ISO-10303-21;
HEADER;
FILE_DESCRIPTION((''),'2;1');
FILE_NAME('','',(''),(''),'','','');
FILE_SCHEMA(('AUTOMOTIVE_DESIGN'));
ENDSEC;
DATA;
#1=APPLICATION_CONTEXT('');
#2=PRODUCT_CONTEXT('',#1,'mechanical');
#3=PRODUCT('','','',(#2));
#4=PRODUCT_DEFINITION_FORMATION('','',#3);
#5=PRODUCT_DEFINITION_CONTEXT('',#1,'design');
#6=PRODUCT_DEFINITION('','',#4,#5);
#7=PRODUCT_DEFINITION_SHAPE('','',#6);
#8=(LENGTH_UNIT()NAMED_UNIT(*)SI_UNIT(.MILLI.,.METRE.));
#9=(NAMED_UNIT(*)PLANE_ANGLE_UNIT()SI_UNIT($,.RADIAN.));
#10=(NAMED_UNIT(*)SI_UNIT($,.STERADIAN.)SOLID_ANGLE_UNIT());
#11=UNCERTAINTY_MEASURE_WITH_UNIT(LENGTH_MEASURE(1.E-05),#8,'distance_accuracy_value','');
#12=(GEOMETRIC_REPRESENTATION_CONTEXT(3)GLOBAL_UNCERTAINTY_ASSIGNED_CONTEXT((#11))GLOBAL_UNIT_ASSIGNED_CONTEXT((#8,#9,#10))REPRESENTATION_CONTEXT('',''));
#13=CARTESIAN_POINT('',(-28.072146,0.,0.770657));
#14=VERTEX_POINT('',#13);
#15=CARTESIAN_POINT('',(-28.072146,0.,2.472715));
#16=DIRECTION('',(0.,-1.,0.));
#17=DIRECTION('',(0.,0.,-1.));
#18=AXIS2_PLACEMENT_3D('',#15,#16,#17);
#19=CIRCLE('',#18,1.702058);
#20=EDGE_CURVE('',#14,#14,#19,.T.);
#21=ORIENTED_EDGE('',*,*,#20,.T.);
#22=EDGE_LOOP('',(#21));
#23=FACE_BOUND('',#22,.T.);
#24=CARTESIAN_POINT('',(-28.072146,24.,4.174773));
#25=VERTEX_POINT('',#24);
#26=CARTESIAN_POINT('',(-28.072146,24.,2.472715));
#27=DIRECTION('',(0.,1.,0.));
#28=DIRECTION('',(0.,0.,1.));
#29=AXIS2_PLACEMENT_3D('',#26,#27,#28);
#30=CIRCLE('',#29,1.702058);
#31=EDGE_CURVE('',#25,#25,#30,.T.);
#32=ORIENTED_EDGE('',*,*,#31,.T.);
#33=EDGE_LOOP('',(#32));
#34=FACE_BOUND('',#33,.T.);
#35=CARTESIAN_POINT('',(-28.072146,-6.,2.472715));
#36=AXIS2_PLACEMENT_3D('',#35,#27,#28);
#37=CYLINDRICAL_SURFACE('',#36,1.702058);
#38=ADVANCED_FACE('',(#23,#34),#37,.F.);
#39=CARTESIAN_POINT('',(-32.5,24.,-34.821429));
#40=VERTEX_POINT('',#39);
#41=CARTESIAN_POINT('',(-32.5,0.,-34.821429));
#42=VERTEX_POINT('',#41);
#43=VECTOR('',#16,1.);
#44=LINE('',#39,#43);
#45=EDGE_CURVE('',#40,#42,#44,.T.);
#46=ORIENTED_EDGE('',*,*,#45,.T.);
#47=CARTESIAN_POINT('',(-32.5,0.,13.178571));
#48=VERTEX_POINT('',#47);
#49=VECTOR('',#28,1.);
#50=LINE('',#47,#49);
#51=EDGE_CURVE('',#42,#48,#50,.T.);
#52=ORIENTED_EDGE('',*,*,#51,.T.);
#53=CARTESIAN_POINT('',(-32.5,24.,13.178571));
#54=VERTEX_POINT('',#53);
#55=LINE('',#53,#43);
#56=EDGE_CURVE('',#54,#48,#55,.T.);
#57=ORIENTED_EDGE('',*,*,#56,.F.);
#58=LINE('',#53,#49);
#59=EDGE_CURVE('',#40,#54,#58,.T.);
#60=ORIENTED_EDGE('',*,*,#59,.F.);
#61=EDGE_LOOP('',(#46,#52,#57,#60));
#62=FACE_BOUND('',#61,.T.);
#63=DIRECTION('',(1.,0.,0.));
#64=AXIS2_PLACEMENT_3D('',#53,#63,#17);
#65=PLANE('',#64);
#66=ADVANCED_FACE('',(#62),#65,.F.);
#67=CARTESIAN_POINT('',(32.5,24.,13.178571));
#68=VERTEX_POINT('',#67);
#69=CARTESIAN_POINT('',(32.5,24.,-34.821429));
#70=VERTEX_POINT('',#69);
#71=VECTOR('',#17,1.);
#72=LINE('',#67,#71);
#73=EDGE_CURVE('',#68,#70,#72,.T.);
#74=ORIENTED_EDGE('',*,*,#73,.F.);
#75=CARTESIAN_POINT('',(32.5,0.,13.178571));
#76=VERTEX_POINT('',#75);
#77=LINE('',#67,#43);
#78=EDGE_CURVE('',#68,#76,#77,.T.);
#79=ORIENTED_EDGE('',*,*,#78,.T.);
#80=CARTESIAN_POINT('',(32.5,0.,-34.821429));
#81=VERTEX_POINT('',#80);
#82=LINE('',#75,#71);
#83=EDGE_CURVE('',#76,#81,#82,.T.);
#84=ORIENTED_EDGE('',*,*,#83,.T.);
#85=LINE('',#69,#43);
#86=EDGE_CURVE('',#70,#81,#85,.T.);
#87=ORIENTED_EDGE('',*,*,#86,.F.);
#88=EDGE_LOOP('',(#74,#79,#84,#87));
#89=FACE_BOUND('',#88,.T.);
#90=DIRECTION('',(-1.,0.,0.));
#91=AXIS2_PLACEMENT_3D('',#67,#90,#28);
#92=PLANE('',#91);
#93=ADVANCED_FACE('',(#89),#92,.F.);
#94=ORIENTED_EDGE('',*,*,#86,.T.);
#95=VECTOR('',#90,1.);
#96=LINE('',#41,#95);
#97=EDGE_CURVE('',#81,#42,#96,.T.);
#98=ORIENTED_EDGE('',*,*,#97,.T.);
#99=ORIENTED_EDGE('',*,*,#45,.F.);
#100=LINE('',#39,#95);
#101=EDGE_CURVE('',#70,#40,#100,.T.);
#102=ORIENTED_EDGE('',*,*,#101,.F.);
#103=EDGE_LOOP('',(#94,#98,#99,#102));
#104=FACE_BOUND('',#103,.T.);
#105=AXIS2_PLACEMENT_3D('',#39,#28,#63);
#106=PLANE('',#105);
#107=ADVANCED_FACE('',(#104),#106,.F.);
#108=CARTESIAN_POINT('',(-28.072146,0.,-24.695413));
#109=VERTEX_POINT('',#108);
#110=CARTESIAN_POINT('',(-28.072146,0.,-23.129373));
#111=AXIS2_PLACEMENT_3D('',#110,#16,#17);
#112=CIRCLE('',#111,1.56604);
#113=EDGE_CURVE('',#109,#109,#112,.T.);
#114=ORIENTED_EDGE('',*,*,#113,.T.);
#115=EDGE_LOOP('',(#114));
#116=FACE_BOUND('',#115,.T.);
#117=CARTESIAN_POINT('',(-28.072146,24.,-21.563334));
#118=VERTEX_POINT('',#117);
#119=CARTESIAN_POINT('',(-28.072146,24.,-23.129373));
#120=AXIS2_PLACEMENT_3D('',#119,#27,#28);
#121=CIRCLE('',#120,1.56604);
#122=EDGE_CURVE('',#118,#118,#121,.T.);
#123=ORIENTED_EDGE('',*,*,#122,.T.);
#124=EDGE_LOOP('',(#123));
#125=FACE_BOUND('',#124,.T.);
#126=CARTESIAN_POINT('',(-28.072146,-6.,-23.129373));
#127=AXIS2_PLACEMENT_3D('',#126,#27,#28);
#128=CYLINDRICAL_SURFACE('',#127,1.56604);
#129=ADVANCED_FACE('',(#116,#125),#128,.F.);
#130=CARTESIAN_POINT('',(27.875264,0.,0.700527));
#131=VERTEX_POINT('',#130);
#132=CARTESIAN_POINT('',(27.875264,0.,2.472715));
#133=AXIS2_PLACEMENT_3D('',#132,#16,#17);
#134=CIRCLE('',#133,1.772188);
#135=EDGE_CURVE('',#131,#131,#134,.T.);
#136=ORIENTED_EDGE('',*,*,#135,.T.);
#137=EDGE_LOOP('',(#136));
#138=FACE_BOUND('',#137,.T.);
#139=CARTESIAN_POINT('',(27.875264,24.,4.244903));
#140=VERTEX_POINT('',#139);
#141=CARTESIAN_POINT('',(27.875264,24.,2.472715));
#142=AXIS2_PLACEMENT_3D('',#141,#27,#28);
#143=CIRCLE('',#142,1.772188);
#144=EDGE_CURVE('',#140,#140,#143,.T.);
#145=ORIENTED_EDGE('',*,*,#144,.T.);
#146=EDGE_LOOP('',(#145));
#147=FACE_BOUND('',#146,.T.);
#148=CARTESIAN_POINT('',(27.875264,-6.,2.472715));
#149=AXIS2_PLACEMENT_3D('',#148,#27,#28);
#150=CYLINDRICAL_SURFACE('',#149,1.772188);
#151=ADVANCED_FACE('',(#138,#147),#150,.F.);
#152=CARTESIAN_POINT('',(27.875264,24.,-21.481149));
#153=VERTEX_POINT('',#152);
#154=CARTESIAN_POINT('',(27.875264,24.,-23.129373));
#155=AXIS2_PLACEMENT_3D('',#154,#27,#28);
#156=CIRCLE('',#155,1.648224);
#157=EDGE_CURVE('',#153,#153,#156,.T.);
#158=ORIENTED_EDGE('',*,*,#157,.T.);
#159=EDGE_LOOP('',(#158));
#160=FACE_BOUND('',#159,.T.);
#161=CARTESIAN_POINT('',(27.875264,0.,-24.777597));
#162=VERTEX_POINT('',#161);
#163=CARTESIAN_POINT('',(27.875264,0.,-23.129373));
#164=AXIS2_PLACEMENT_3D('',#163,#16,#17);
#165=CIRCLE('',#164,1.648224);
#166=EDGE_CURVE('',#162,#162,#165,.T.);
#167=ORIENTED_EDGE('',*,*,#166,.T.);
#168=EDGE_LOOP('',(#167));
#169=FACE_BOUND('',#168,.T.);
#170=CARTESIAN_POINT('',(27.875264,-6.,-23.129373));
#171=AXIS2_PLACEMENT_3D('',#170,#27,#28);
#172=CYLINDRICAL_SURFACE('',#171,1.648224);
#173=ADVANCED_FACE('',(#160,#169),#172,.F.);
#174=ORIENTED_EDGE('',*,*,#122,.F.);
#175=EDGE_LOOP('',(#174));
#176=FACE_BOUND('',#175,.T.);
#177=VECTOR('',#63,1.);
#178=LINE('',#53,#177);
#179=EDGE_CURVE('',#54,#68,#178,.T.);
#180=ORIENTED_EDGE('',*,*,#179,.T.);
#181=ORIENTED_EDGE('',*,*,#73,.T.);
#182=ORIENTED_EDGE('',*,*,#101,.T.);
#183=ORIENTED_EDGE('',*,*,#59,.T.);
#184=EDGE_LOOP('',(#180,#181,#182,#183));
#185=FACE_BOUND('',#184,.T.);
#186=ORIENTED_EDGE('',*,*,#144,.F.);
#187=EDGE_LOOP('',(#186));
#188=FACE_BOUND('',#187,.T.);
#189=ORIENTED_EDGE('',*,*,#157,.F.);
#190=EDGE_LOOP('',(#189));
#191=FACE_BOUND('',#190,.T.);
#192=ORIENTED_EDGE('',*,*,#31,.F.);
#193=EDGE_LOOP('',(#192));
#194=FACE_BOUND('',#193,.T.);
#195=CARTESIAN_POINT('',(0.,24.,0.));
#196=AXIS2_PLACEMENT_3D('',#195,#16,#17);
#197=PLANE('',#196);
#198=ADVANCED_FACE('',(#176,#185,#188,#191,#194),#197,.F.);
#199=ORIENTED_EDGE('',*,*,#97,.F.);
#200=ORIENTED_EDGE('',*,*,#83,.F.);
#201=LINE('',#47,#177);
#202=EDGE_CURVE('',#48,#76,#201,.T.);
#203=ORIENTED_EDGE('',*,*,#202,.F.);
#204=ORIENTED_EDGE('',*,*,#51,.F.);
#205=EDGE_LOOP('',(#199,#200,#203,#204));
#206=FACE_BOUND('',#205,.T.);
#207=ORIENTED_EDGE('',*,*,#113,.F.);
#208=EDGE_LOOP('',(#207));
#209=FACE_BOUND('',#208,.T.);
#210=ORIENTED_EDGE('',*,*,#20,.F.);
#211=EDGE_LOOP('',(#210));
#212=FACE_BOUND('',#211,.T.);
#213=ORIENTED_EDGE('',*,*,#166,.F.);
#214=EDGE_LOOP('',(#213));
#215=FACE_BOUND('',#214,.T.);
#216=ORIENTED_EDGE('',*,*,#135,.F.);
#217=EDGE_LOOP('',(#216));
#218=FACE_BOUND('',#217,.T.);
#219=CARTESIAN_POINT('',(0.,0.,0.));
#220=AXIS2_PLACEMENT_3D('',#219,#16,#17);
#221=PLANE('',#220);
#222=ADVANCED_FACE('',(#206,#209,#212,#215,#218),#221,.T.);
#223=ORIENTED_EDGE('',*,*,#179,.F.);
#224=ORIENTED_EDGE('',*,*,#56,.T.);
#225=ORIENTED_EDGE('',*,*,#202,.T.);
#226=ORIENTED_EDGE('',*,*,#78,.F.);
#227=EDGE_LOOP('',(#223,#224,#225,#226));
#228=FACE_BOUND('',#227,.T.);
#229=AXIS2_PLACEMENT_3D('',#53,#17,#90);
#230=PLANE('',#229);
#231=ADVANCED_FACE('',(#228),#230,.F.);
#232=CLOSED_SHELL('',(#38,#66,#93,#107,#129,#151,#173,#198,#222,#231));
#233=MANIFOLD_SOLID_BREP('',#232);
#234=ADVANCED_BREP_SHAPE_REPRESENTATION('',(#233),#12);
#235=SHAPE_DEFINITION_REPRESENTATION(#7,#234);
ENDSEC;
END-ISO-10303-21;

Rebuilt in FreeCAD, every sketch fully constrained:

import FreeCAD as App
import Part
import Sketcher

doc = App.newDocument("Part")
body = doc.addObject("PartDesign::Body", "Body")

# Sketch on XZ plane
sketch1 = body.newObject("Sketcher::SketchObject", "Sketch")
sketch1.AttachmentSupport = (doc.getObject("XZ_Plane"), [""])
sketch1.MapMode = "FlatFace"
sketch1.addGeometry(Part.LineSegment(App.Vector(-32, -35, 0), App.Vector(-32, 13, 0)), False)
sketch1.addGeometry(Part.LineSegment(App.Vector(-32, 13, 0), App.Vector(32, 13, 0)), False)
sketch1.addGeometry(Part.LineSegment(App.Vector(32, 13, 0), App.Vector(32, -35, 0)), False)
sketch1.addGeometry(Part.LineSegment(App.Vector(32, -35, 0), App.Vector(-32, -35, 0)), False)
sketch1.addConstraint(Sketcher.Constraint("Coincident", 0, 2, 1, 1))
sketch1.addConstraint(Sketcher.Constraint("Coincident", 1, 2, 2, 1))
sketch1.addConstraint(Sketcher.Constraint("Coincident", 2, 2, 3, 1))
sketch1.addConstraint(Sketcher.Constraint("Coincident", 3, 2, 0, 1))
sketch1.addConstraint(Sketcher.Constraint("Vertical", 0))
sketch1.addConstraint(Sketcher.Constraint("Horizontal", 1))
sketch1.addConstraint(Sketcher.Constraint("Vertical", 2))
sketch1.addConstraint(Sketcher.Constraint("Horizontal", 3))
sketch1.addConstraint(Sketcher.Constraint("DistanceX", 1, 1, 1, 2, 65.0))
sketch1.addConstraint(Sketcher.Constraint("DistanceY", 0, 1, 0, 2, 48.0))
sketch1.addConstraint(Sketcher.Constraint("DistanceX", 0, 2, -1, 1, 32.5))
sketch1.addConstraint(Sketcher.Constraint("DistanceY", -1, 1, 0, 2, 13.178571))
pad1 = body.newObject("PartDesign::Pad", "Pad")
pad1.Profile = sketch1
pad1.Length = 24
pad1.Reversed = True

# Sketch on XZ plane
sketch2 = body.newObject("Sketcher::SketchObject", "Sketch001")
sketch2.AttachmentSupport = (doc.getObject("XZ_Plane"), [""])
sketch2.MapMode = "FlatFace"
sketch2.AttachmentOffset = App.Placement(App.Vector(0, 0, -24), App.Rotation())
sketch2.addGeometry(Part.Circle(App.Vector(-28.1, -23.1, 0), App.Vector(0, 0, 1), 1.6), False)
sketch2.addGeometry(Part.Circle(App.Vector(27.9, -23.1, 0), App.Vector(0, 0, 1), 1.6), False)
sketch2.addGeometry(Part.Circle(App.Vector(27.9, 2.5, 0), App.Vector(0, 0, 1), 1.8), False)
sketch2.addGeometry(Part.Circle(App.Vector(-28.1, 2.5, 0), App.Vector(0, 0, 1), 1.7), False)
sketch2.addConstraint(Sketcher.Constraint("Horizontal", 0, 3, 1, 3))
sketch2.addConstraint(Sketcher.Constraint("Horizontal", 2, 3, 3, 3))
sketch2.addConstraint(Sketcher.Constraint("Vertical", 1, 3, 2, 3))
sketch2.addConstraint(Sketcher.Constraint("Vertical", 0, 3, 3, 3))
sketch2.addConstraint(Sketcher.Constraint("Diameter", 0, 3.132079))
sketch2.addConstraint(Sketcher.Constraint("Diameter", 1, 3.296448))
sketch2.addConstraint(Sketcher.Constraint("Diameter", 2, 3.544376))
sketch2.addConstraint(Sketcher.Constraint("Diameter", 3, 3.404116))
sketch2.addConstraint(Sketcher.Constraint("DistanceX", 0, 3, 1, 3, 55.94741))
sketch2.addConstraint(Sketcher.Constraint("DistanceY", 1, 3, 2, 3, 25.602088))
sketch2.addConstraint(Sketcher.Constraint("DistanceX", 0, 3, -1, 1, 28.072146))
sketch2.addConstraint(Sketcher.Constraint("DistanceY", 0, 3, -1, 1, 23.129373))
pocket1 = body.newObject("PartDesign::Pocket", "Pocket")
pocket1.Profile = sketch2
pocket1.Length = 30
pocket1.Reversed = True

doc.recompute()
